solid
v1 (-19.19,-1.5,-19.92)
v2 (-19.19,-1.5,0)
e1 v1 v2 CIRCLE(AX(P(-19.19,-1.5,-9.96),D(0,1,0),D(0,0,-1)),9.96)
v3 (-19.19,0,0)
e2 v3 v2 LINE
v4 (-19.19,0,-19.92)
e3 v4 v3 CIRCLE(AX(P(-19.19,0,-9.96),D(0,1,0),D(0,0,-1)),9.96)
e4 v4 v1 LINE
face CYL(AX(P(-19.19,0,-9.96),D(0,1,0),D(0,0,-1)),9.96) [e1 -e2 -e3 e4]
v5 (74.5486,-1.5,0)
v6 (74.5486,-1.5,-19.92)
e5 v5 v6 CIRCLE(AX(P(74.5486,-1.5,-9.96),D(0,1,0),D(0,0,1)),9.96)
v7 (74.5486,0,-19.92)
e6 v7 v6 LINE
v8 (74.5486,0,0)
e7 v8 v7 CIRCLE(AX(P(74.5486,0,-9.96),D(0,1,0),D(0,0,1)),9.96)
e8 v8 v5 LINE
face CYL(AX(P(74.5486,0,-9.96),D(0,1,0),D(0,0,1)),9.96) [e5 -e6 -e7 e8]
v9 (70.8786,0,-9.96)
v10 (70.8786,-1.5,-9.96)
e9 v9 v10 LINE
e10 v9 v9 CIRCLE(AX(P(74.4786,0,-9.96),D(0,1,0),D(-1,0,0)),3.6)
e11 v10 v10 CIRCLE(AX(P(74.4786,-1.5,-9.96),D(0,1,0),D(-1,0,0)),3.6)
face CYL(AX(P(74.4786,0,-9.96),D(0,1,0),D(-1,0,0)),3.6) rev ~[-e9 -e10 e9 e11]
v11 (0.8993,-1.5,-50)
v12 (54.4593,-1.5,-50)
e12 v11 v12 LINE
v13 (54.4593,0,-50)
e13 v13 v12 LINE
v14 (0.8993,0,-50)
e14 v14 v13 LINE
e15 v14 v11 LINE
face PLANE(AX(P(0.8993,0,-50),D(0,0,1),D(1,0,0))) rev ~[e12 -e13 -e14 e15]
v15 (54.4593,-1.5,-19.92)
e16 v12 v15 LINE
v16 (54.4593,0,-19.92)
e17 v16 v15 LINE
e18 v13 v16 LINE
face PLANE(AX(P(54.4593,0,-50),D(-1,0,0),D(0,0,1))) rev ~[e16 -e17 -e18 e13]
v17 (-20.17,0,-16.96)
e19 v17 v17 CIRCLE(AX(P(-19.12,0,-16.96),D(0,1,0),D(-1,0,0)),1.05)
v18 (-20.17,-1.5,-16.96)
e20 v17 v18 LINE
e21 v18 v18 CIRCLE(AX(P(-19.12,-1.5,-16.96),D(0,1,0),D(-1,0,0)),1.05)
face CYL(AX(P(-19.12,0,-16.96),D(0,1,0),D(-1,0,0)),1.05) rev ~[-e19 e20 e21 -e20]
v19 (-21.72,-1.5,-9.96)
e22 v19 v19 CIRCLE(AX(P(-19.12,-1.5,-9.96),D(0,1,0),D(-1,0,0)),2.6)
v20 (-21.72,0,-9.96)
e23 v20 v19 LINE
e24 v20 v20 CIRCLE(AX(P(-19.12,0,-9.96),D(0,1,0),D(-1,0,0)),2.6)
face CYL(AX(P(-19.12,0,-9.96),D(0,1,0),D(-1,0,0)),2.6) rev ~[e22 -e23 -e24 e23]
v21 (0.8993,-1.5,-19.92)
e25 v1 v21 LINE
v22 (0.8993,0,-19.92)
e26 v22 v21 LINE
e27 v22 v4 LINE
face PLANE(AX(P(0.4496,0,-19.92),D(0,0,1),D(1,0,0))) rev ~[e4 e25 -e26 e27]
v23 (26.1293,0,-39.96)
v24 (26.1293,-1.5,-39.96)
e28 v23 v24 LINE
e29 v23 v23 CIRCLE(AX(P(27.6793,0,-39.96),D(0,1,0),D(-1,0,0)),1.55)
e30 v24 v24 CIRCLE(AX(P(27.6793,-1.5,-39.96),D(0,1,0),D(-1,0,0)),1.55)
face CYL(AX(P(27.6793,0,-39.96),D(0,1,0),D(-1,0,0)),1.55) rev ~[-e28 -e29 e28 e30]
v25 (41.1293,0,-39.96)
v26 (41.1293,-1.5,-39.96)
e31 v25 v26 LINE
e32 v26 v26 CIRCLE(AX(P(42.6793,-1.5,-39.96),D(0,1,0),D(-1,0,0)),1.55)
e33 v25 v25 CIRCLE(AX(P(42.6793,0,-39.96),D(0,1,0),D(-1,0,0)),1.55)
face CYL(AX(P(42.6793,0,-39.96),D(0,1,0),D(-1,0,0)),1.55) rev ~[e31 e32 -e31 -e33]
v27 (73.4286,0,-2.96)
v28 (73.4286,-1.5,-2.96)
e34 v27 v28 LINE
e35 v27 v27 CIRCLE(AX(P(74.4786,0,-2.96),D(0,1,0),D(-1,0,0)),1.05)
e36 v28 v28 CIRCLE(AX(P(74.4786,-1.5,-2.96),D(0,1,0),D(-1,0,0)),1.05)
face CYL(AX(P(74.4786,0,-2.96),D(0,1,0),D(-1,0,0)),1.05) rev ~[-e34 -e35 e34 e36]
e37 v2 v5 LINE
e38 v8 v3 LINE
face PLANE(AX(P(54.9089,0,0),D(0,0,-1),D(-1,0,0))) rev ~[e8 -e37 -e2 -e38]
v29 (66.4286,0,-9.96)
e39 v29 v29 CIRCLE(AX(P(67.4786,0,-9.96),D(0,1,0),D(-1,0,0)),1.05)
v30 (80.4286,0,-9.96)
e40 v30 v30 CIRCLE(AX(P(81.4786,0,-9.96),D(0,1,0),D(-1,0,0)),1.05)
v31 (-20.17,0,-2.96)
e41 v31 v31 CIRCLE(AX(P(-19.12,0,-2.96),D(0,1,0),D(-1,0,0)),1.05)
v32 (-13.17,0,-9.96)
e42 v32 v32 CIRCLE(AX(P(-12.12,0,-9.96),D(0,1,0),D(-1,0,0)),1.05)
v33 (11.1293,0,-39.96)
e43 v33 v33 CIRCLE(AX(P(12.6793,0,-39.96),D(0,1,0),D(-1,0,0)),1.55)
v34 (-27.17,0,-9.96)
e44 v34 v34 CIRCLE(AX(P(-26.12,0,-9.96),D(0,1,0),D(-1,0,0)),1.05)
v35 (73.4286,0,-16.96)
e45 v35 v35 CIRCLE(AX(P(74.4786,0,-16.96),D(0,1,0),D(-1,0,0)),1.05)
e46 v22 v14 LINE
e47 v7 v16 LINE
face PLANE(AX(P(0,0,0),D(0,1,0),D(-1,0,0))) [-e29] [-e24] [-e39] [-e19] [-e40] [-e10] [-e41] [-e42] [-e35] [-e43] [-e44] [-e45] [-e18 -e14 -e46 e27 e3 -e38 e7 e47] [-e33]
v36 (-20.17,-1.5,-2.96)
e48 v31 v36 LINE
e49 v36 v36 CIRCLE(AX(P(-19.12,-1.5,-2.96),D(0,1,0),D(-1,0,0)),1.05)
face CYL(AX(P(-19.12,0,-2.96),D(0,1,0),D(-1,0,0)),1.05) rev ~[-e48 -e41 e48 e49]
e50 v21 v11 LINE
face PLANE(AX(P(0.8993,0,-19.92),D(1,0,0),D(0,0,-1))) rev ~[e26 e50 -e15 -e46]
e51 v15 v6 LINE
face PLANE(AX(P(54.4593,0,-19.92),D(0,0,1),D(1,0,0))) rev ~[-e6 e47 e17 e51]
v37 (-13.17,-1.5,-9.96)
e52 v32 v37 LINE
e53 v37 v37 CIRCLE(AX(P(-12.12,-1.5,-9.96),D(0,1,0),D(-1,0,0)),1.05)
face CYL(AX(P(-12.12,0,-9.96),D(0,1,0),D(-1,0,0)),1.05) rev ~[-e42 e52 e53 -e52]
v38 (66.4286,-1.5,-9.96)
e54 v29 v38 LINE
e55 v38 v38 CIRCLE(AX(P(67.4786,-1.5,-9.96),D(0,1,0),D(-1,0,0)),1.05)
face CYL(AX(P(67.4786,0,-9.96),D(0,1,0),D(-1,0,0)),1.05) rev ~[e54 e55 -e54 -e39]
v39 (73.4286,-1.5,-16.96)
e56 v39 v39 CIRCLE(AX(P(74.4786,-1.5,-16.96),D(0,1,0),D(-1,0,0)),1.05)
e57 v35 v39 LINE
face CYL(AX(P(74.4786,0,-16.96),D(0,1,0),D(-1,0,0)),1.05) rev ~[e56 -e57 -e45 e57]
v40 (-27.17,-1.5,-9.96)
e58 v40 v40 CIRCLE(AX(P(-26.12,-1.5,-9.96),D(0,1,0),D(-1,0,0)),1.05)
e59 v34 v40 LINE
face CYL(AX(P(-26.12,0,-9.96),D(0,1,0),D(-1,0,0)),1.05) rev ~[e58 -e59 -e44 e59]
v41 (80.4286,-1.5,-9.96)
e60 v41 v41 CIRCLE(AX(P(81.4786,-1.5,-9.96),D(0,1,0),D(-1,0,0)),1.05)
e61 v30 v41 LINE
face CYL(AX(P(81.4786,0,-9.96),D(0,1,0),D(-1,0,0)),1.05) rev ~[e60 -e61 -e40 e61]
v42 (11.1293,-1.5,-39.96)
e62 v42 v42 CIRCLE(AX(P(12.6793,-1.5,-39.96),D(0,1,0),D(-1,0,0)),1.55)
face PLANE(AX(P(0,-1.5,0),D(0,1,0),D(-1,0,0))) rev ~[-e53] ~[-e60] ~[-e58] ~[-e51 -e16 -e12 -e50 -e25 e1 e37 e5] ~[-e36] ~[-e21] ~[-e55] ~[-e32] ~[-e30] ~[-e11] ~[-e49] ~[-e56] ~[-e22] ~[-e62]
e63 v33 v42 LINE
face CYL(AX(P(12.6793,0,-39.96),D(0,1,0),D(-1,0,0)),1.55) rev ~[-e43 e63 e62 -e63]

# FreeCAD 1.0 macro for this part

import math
import FreeCAD as App
import Part
import Sketcher

V = App.Vector

doc = App.newDocument("Part")
params = doc.addObject("Spreadsheet::Sheet", "Params")
for row, (alias, value) in enumerate([
    ("sketch1_diameter", "3.1 mm"),
    ("sketch1_diameter2", "2.1 mm"),
    ("sketch1_diameter3", "7.2 mm"),
    ("sketch1_diameter4", "5.2 mm"),
    ("sketch1_radius", "9.96 mm"),
    ("pad1_length", "1.5 mm"),
], start=1):
    params.set(f"A{row}", alias)
    params.set(f"B{row}", "=" + value)
    params.setAlias(f"B{row}", alias)

body = doc.addObject("PartDesign::Body", "Body")

sketch1 = body.newObject("Sketcher::SketchObject", "Sketch")
sketch1.AttachmentSupport = (doc.getObject("XZ_Plane"), [""])
sketch1.MapMode = "FlatFace"
sketch1.addGeometry(Part.ArcOfCircle(Part.Circle(V(74.5, -10, 0), V(0, 0, 1), 10), math.radians(-90), math.radians(90)), False)
sketch1.addGeometry(Part.LineSegment(V(74.5, -19.9, 0), V(54.5, -19.9, 0)), False)
sketch1.addGeometry(Part.LineSegment(V(54.5, -19.9, 0), V(54.5, -50, 0)), False)
sketch1.addGeometry(Part.LineSegment(V(54.5, -50, 0), V(0.9, -50, 0)), False)
sketch1.addGeometry(Part.LineSegment(V(0.9, -50, 0), V(0.9, -19.9, 0)), False)
sketch1.addGeometry(Part.LineSegment(V(0.9, -19.9, 0), V(-19.2, -19.9, 0)), False)
sketch1.addGeometry(Part.ArcOfCircle(Part.Circle(V(-19.2, -10, 0), V(0, 0, 1), 10), math.radians(90), math.radians(270)), False)
sketch1.addGeometry(Part.LineSegment(V(-19.2, 0, 0), V(74.5, 0, 0)), False)
sketch1.addGeometry(Part.Circle(V(12.7, -40, 0), V(0, 0, 1), 1.6), False)
sketch1.addGeometry(Part.Circle(V(42.7, -40, 0), V(0, 0, 1), 1.6), False)
sketch1.addGeometry(Part.Circle(V(27.7, -40, 0), V(0, 0, 1), 1.6), False)
sketch1.addGeometry(Part.Circle(V(74.5, -3, 0), V(0, 0, 1), 1.1), False)
sketch1.addGeometry(Part.Circle(V(74.5, -17, 0), V(0, 0, 1), 1.1), False)
sketch1.addGeometry(Part.Circle(V(81.5, -10, 0), V(0, 0, 1), 1.1), False)
sketch1.addGeometry(Part.Circle(V(74.5, -10, 0), V(0, 0, 1), 3.6), False)
sketch1.addGeometry(Part.Circle(V(67.5, -10, 0), V(0, 0, 1), 1.1), False)
sketch1.addGeometry(Part.Circle(V(-19.1, -3, 0), V(0, 0, 1), 1.1), False)
sketch1.addGeometry(Part.Circle(V(-19.1, -17, 0), V(0, 0, 1), 1.1), False)
sketch1.addGeometry(Part.Circle(V(-12.1, -10, 0), V(0, 0, 1), 1.1), False)
sketch1.addGeometry(Part.Circle(V(-19.1, -10, 0), V(0, 0, 1), 2.6), False)
sketch1.addGeometry(Part.Circle(V(-26.1, -10, 0), V(0, 0, 1), 1.1), False)
sketch1.addConstraint(Sketcher.Constraint("Tangent", 0, 1, 1, 1))
sketch1.addConstraint(Sketcher.Constraint("Coincident", 1, 2, 2, 1))
sketch1.addConstraint(Sketcher.Constraint("Coincident", 2, 2, 3, 1))
sketch1.addConstraint(Sketcher.Constraint("Coincident", 3, 2, 4, 1))
sketch1.addConstraint(Sketcher.Constraint("Coincident", 4, 2, 5, 1))
sketch1.addConstraint(Sketcher.Constraint("Tangent", 5, 2, 6, 2))
sketch1.addConstraint(Sketcher.Constraint("Tangent", 6, 1, 7, 1))
sketch1.addConstraint(Sketcher.Constraint("Tangent", 7, 2, 0, 2))
sketch1.addConstraint(Sketcher.Constraint("Horizontal", 1))
sketch1.addConstraint(Sketcher.Constraint("Vertical", 2))
sketch1.addConstraint(Sketcher.Constraint("Horizontal", 3))
sketch1.addConstraint(Sketcher.Constraint("Vertical", 4))
sketch1.addConstraint(Sketcher.Constraint("Horizontal", 5))
sketch1.addConstraint(Sketcher.Constraint("Horizontal", 7))
sketch1.addConstraint(Sketcher.Constraint("Equal", 0, 6))
sketch1.addConstraint(Sketcher.Constraint("Equal", 8, 9))
sketch1.addConstraint(Sketcher.Constraint("Equal", 9, 10))
sketch1.addConstraint(Sketcher.Constraint("Equal", 11, 12))
sketch1.addConstraint(Sketcher.Constraint("Equal", 12, 13))
sketch1.addConstraint(Sketcher.Constraint("Equal", 13, 15))
sketch1.addConstraint(Sketcher.Constraint("Equal", 15, 16))
sketch1.addConstraint(Sketcher.Constraint("Equal", 16, 17))
sketch1.addConstraint(Sketcher.Constraint("Equal", 17, 18))
sketch1.addConstraint(Sketcher.Constraint("Equal", 18, 20))
sketch1.addConstraint(Sketcher.Constraint("PointOnObject", 6, 1, -1))
sketch1.addConstraint(Sketcher.Constraint("Horizontal", 8, 3, 9, 3))
sketch1.addConstraint(Sketcher.Constraint("Horizontal", 9, 3, 10, 3))
sketch1.addConstraint(Sketcher.Constraint("Horizontal", 6, 3, 13, 3))
sketch1.addConstraint(Sketcher.Constraint("Horizontal", 13, 3, 14, 3))
sketch1.addConstraint(Sketcher.Constraint("Horizontal", 14, 3, 15, 3))
sketch1.addConstraint(Sketcher.Constraint("Horizontal", 11, 3, 16, 3))
sketch1.addConstraint(Sketcher.Constraint("Horizontal", 12, 3, 17, 3))
sketch1.addConstraint(Sketcher.Constraint("Horizontal", 15, 3, 18, 3))
sketch1.addConstraint(Sketcher.Constraint("Horizontal", 18, 3, 19, 3))
sketch1.addConstraint(Sketcher.Constraint("Horizontal", 19, 3, 20, 3))
sketch1.addConstraint(Sketcher.Constraint("Vertical", 11, 3, 12, 3))
sketch1.addConstraint(Sketcher.Constraint("Vertical", 12, 3, 14, 3))
sketch1.addConstraint(Sketcher.Constraint("Vertical", 16, 3, 17, 3))
sketch1.addConstraint(Sketcher.Constraint("Vertical", 17, 3, 19, 3))
sketch1.addConstraint(Sketcher.Constraint("Equal", 1, 5))
sketch1.addConstraint(Sketcher.Constraint("Diameter", 8, 3.1))
sketch1.addConstraint(Sketcher.Constraint("Diameter", 11, 2.1))
sketch1.addConstraint(Sketcher.Constraint("Diameter", 14, 7.2))
sketch1.addConstraint(Sketcher.Constraint("Diameter", 19, 5.2))
sketch1.addConstraint(Sketcher.Constraint("Radius", 0, 9.96))
sketch1.addConstraint(Sketcher.Constraint("DistanceY", 2, 2, -1, 1, 50.0))
sketch1.addConstraint(Sketcher.Constraint("DistanceY", 8, 3, 6, 3, 30.0))
sketch1.addConstraint(Sketcher.Constraint("DistanceX", 8, 3, 9, 3, 30.0))
sketch1.addConstraint(Sketcher.Constraint("DistanceX", 10, 3, 9, 3, 15.0))
sketch1.addConstraint(Sketcher.Constraint("DistanceY", 0, 3, 11, 3, 7.0))
sketch1.addConstraint(Sketcher.Constraint("DistanceY", 12, 3, 0, 3, 7.0))
sketch1.addConstraint(Sketcher.Constraint("DistanceX", 11, 3, 13, 3, 7.0))
sketch1.addConstraint(Sketcher.Constraint("DistanceX", 15, 3, 14, 3, 7.0))
sketch1.addConstraint(Sketcher.Constraint("DistanceX", 16, 3, 18, 3, 7.0))
sketch1.addConstraint(Sketcher.Constraint("DistanceX", 20, 3, 19, 3, 7.0))
sketch1.addConstraint(Sketcher.Constraint("DistanceX", 3, 2, 3, 1, 53.56))
sketch1.addConstraint(Sketcher.Constraint("DistanceX", 6, 3, -1, 1, 19.19))
sketch1.addConstraint(Sketcher.Constraint("DistanceX", 16, 3, -1, 1, 19.12))
sketch1.addConstraint(Sketcher.Constraint("DistanceX", 11, 3, 0, 3, 0.07))
sketch1.addConstraint(Sketcher.Constraint("DistanceX", 9, 3, 2, 2, 11.78))
sketch1.addConstraint(Sketcher.Constraint("DistanceX", 1, 2, 1, 1, 20.0893))
sketch1.setExpression("Constraints[40]", "Params.sketch1_diameter")
sketch1.setExpression("Constraints[41]", "Params.sketch1_diameter2")
sketch1.setExpression("Constraints[42]", "Params.sketch1_diameter3")
sketch1.setExpression("Constraints[43]", "Params.sketch1_diameter4")
sketch1.setExpression("Constraints[44]", "Params.sketch1_radius")
pad1 = body.newObject("PartDesign::Pad", "Pad")
pad1.Profile = sketch1
pad1.setExpression("Length", "Params.pad1_length")

doc.recompute()
